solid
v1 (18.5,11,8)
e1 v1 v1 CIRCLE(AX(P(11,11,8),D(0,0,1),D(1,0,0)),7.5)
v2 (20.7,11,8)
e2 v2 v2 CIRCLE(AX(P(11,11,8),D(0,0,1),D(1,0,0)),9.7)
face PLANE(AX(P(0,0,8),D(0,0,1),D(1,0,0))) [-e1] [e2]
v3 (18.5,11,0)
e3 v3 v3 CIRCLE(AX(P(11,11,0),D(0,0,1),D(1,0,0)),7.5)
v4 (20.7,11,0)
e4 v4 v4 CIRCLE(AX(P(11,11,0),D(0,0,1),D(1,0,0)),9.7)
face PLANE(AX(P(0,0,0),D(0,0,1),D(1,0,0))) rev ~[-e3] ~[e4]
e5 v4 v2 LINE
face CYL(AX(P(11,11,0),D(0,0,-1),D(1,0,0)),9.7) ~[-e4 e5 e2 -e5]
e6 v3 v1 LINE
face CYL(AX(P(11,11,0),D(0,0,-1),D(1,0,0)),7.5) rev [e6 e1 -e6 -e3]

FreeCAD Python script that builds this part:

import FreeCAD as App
import Part
import Sketcher
from FreeCAD import Vector

doc = App.newDocument("Part")
body = doc.addObject("PartDesign::Body", "Body")

# Sketch on XY plane
sketch1 = doc.addObject("Sketcher::SketchObject", "Sketch")
body.addObject(sketch1)
sketch1.AttachmentSupport = (doc.XY_Plane, [""])
sketch1.MapMode = "FlatFace"
sketch1.addGeometry([
    Part.Circle(Vector(11, 11, 0), Vector(0, 0, 1), 9.7),
    Part.Circle(Vector(11, 11, 0), Vector(0, 0, 1), 7.5),
], False)
sketch1.addConstraint([
    Sketcher.Constraint("Coincident", 1, 3, 0, 3),
    Sketcher.Constraint("Diameter", 1, 15.0),
    Sketcher.Constraint("Diameter", 0, 19.4),
    Sketcher.Constraint("DistanceX", -1, 1, 0, 3, 11.0),
    Sketcher.Constraint("DistanceY", -1, 1, 0, 3, 11.0),
])
pad1 = doc.addObject("PartDesign::Pad", "Pad")
body.addObject(pad1)
pad1.Profile = sketch1
pad1.Length = 8

doc.recompute()
